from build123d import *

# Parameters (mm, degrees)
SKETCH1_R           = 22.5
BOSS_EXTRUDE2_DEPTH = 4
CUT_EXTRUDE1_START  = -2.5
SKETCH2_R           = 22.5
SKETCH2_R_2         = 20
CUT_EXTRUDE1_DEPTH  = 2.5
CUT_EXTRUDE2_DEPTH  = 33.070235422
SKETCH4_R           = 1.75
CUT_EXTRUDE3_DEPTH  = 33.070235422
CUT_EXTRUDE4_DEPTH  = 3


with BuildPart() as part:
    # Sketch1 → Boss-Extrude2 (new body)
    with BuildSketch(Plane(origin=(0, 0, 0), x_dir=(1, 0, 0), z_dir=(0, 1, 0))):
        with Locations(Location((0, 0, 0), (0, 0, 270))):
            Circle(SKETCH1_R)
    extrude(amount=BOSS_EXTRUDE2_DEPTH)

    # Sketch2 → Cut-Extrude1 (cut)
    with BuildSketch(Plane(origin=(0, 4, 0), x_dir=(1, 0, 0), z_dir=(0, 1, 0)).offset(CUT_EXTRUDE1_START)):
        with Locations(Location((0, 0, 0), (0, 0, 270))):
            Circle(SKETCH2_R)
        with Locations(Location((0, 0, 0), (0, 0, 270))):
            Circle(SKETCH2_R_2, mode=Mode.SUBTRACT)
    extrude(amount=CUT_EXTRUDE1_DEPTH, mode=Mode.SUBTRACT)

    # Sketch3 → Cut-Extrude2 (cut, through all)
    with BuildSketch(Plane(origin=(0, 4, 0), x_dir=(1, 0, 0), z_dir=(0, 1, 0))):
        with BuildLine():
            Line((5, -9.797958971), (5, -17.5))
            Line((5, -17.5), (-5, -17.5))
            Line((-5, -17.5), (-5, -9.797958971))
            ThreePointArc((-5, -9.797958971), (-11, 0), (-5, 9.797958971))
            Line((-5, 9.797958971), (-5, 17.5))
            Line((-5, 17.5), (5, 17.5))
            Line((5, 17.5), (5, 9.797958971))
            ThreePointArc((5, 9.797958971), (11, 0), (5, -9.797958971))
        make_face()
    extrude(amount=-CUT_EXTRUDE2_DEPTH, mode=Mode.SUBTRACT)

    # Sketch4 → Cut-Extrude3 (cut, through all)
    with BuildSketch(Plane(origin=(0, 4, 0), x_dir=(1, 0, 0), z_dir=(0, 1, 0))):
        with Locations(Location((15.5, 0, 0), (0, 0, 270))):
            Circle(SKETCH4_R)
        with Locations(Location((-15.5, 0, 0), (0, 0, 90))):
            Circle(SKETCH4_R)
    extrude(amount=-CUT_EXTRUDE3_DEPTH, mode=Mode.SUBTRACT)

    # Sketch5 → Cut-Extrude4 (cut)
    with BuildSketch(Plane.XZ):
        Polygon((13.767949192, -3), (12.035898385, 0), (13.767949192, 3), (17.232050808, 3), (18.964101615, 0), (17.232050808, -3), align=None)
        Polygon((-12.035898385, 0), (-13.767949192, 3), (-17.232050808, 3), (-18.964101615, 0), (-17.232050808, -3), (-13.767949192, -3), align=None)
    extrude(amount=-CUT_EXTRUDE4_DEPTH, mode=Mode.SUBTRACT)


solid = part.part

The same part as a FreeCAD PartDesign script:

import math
import FreeCAD as App
import Part
import Sketcher
from FreeCAD import Vector
Q = App.Units.Quantity


def add_polygon(sketch, points):
    """Adds a closed chain of lines whose ends are joined by coincident constraints."""
    first, n = sketch.GeometryCount, len(points)
    for a, b in zip(points, points[1:] + points[:1]):
        sketch.addGeometry(Part.LineSegment(App.Vector(*a, 0), App.Vector(*b, 0)), False)
    for i in range(n):
        sketch.addConstraint(Sketcher.Constraint("Coincident", first + i, 2, first + (i + 1) % n, 1))

doc = App.newDocument("Part")
params = doc.addObject("Spreadsheet::Sheet", "Params")
for row, (alias, value) in enumerate([
    ("sketch1_diameter", "45 mm"),
    ("pad1_length", "4 mm"),
    ("sketch2_diameter", "45 mm"),
    ("sketch2_diameter2", "40 mm"),
    ("pocket1_length", "2.5 mm"),
    ("sketch3_radius", "11 mm"),
    ("sketch3_width", "10 mm"),
    ("sketch4_diameter", "3.5 mm"),
    ("pocket4_length", "3 mm"),
], start=1):
    params.set(f"A{row}", alias)
    params.set(f"B{row}", "=" + value)
    params.setAlias(f"B{row}", alias)

body = doc.addObject("PartDesign::Body", "Body")

sketch1 = doc.addObject("Sketcher::SketchObject", "Sketch")
body.addObject(sketch1)
sketch1.AttachmentSupport = (doc.XZ_Plane, [""])
sketch1.MapMode = "FlatFace"
sketch1.addGeometry(Part.Circle(Vector(0, 0, 0), Vector(0, 0, 1), 22), False)
sketch1.addConstraint([
    Sketcher.Constraint("Coincident", 0, 3, -1, 1),
    Sketcher.Constraint("Diameter", 0, 45.0),
])
sketch1.setExpression("Constraints[1]", "Params.sketch1_diameter")
pad1 = doc.addObject("PartDesign::Pad", "Pad")
body.addObject(pad1)
pad1.Profile = sketch1
pad1.setExpression("Length", "Params.pad1_length")
pad1.Reversed = True

sketch2 = doc.addObject("Sketcher::SketchObject", "Sketch001")
body.addObject(sketch2)
sketch2.AttachmentSupport = (doc.XZ_Plane, [""])
sketch2.MapMode = "FlatFace"
sketch2.AttachmentOffset = App.Placement(Vector(0, 0, -1.5), App.Rotation())
sketch2.addGeometry([
    Part.Circle(Vector(0, 0, 0), Vector(0, 0, 1), 22),
    Part.Circle(Vector(0, 0, 0), Vector(0, 0, 1), 20),
], False)
sketch2.addConstraint([
    Sketcher.Constraint("Coincident", 0, 3, -1, 1),
    Sketcher.Constraint("Coincident", 1, 3, -1, 1),
    Sketcher.Constraint("Diameter", 0, 45.0),
    Sketcher.Constraint("Diameter", 1, 40.0),
])
sketch2.setExpression("Constraints[2]", "Params.sketch2_diameter")
sketch2.setExpression("Constraints[3]", "Params.sketch2_diameter2")
pocket1 = doc.addObject("PartDesign::Pocket", "Pocket")
body.addObject(pocket1)
pocket1.Profile = sketch2
pocket1.setExpression("Length", "Params.pocket1_length")

sketch3 = doc.addObject("Sketcher::SketchObject", "Sketch002")
body.addObject(sketch3)
sketch3.AttachmentSupport = (doc.XZ_Plane, [""])
sketch3.MapMode = "FlatFace"
sketch3.AttachmentOffset = App.Placement(Vector(0, 0, -4), App.Rotation())
sketch3.addGeometry([
    Part.LineSegment(Vector(5, 18, 0), Vector(5, 10, 0)),
    Part.ArcOfCircle(Part.Circle(Vector(0, 0, 0), Vector(0, 0, 1), 11), math.radians(-63), math.radians(63)),
    Part.LineSegment(Vector(5, -10, 0), Vector(5, -18, 0)),
    Part.LineSegment(Vector(5, -18, 0), Vector(-5, -18, 0)),
    Part.LineSegment(Vector(-5, -18, 0), Vector(-5, -10, 0)),
    Part.ArcOfCircle(Part.Circle(Vector(0, 0, 0), Vector(0, 0, 1), 11), math.radians(117), math.radians(243)),
    Part.LineSegment(Vector(-5, 10, 0), Vector(-5, 18, 0)),
    Part.LineSegment(Vector(-5, 18, 0), Vector(5, 18, 0)),
], False)
sketch3.addConstraint([
    Sketcher.Constraint("Coincident", 0, 2, 1, 2),
    Sketcher.Constraint("Coincident", 1, 1, 2, 1),
    Sketcher.Constraint("Coincident", 2, 2, 3, 1),
    Sketcher.Constraint("Coincident", 3, 2, 4, 1),
    Sketcher.Constraint("Coincident", 4, 2, 5, 2),
    Sketcher.Constraint("Coincident", 5, 1, 6, 1),
    Sketcher.Constraint("Coincident", 6, 2, 7, 1),
    Sketcher.Constraint("Coincident", 7, 2, 0, 1),
    Sketcher.Constraint("Vertical", 0),
    Sketcher.Constraint("Vertical", 2),
    Sketcher.Constraint("Horizontal", 3),
    Sketcher.Constraint("Vertical", 4),
    Sketcher.Constraint("Vertical", 6),
    Sketcher.Constraint("Horizontal", 7),
    Sketcher.Constraint("Coincident", 1, 3, -1, 1),
    Sketcher.Constraint("Coincident", 5, 3, -1, 1),
    Sketcher.Constraint("Equal", 1, 5),
    Sketcher.Constraint("Symmetric", 2, 2, 6, 2, -1, 1),
    Sketcher.Constraint("Horizontal", 1, 1, 4, 2),
    Sketcher.Constraint("Horizontal", 0, 2, 5, 1),
    Sketcher.Constraint("Radius", 1, 11.0),
    Sketcher.Constraint("DistanceX", 3, 2, 3, 1, 10.0),
    Sketcher.Constraint("DistanceY", 2, 2, -1, 1, 17.5),
])
sketch3.setExpression("Constraints[20]", "Params.sketch3_radius")
sketch3.setExpression("Constraints[21]", "Params.sketch3_width")
pocket2 = doc.addObject("PartDesign::Pocket", "Pocket001")
body.addObject(pocket2)
pocket2.Profile = sketch3
pocket2.Type = "ThroughAll"
pocket2.Reversed = True

sketch4 = doc.addObject("Sketcher::SketchObject", "Sketch003")
body.addObject(sketch4)
sketch4.AttachmentSupport = (doc.XZ_Plane, [""])
sketch4.MapMode = "FlatFace"
sketch4.AttachmentOffset = App.Placement(Vector(0, 0, -4), App.Rotation())
sketch4.addGeometry([
    Part.Circle(Vector(15.5, 0, 0), Vector(0, 0, 1), 1.8),
    Part.Circle(Vector(-15.5, 0, 0), Vector(0, 0, 1), 1.8),
], False)
sketch4.addConstraint([
    Sketcher.Constraint("Equal", 0, 1),
    Sketcher.Constraint("Symmetric", 0, 3, 1, 3, -1, 1),
    Sketcher.Constraint("PointOnObject", 0, 3, -1),
    Sketcher.Constraint("Diameter", 0, 3.5),
    Sketcher.Constraint("DistanceX", 1, 3, 0, 3, 31.0),
])
sketch4.setExpression("Constraints[3]", "Params.sketch4_diameter")
pocket3 = doc.addObject("PartDesign::Pocket", "Pocket002")
body.addObject(pocket3)
pocket3.Profile = sketch4
pocket3.Type = "ThroughAll"
pocket3.Reversed = True

sketch5 = doc.addObject("Sketcher::SketchObject", "Sketch004")
body.addObject(sketch5)
sketch5.AttachmentSupport = (doc.XZ_Plane, [""])
sketch5.MapMode = "FlatFace"
add_polygon(sketch5, [(12, 0), (13.8, -3), (17.2, -3), (19, 0), (17.2, 3), (13.8, 3)])
add_polygon(sketch5, [(-12, 0), (-13.8, 3), (-17.2, 3), (-19, 0), (-17.2, -3), (-13.8, -3)])
sketch5.addConstraint([
    Sketcher.Constraint("Horizontal", 1),
    Sketcher.Constraint("Horizontal", 4),
    Sketcher.Constraint("Horizontal", 7),
    Sketcher.Constraint("Horizontal", 10),
    Sketcher.Constraint("Symmetric", 0, 2, 6, 2, -1, 1),
    Sketcher.Constraint("Symmetric", 2, 2, 8, 2, -1, 1),
    Sketcher.Constraint("Symmetric", 3, 2, 9, 2, -1, 1),
    Sketcher.Constraint("Symmetric", 5, 2, 11, 2, -1, 1),
    Sketcher.Constraint("Symmetric", 4, 2, 6, 2, -2),
    Sketcher.Constraint("PointOnObject", 2, 2, -1),
    Sketcher.Constraint("PointOnObject", 5, 2, -1),
    Sketcher.Constraint("Parallel", 0, 3),
    Sketcher.Constraint("Parallel", 2, 5),
    Sketcher.Constraint("Parallel", 5, 8),
    Sketcher.Constraint("Parallel", 8, 11),
    Sketcher.Constraint("Angle", 0, Q("-60 deg")),
    Sketcher.Constraint("DistanceY", 0, 2, -1, 1, 3.0),
    Sketcher.Constraint("DistanceX", 6, 2, 3, 2, 31.0),
    Sketcher.Constraint("DistanceX", 1, 1, 1, 2, 3.464102),
])
pocket4 = doc.addObject("PartDesign::Pocket", "Pocket003")
body.addObject(pocket4)
pocket4.Profile = sketch5
pocket4.setExpression("Length", "Params.pocket4_length")

doc.recompute()
